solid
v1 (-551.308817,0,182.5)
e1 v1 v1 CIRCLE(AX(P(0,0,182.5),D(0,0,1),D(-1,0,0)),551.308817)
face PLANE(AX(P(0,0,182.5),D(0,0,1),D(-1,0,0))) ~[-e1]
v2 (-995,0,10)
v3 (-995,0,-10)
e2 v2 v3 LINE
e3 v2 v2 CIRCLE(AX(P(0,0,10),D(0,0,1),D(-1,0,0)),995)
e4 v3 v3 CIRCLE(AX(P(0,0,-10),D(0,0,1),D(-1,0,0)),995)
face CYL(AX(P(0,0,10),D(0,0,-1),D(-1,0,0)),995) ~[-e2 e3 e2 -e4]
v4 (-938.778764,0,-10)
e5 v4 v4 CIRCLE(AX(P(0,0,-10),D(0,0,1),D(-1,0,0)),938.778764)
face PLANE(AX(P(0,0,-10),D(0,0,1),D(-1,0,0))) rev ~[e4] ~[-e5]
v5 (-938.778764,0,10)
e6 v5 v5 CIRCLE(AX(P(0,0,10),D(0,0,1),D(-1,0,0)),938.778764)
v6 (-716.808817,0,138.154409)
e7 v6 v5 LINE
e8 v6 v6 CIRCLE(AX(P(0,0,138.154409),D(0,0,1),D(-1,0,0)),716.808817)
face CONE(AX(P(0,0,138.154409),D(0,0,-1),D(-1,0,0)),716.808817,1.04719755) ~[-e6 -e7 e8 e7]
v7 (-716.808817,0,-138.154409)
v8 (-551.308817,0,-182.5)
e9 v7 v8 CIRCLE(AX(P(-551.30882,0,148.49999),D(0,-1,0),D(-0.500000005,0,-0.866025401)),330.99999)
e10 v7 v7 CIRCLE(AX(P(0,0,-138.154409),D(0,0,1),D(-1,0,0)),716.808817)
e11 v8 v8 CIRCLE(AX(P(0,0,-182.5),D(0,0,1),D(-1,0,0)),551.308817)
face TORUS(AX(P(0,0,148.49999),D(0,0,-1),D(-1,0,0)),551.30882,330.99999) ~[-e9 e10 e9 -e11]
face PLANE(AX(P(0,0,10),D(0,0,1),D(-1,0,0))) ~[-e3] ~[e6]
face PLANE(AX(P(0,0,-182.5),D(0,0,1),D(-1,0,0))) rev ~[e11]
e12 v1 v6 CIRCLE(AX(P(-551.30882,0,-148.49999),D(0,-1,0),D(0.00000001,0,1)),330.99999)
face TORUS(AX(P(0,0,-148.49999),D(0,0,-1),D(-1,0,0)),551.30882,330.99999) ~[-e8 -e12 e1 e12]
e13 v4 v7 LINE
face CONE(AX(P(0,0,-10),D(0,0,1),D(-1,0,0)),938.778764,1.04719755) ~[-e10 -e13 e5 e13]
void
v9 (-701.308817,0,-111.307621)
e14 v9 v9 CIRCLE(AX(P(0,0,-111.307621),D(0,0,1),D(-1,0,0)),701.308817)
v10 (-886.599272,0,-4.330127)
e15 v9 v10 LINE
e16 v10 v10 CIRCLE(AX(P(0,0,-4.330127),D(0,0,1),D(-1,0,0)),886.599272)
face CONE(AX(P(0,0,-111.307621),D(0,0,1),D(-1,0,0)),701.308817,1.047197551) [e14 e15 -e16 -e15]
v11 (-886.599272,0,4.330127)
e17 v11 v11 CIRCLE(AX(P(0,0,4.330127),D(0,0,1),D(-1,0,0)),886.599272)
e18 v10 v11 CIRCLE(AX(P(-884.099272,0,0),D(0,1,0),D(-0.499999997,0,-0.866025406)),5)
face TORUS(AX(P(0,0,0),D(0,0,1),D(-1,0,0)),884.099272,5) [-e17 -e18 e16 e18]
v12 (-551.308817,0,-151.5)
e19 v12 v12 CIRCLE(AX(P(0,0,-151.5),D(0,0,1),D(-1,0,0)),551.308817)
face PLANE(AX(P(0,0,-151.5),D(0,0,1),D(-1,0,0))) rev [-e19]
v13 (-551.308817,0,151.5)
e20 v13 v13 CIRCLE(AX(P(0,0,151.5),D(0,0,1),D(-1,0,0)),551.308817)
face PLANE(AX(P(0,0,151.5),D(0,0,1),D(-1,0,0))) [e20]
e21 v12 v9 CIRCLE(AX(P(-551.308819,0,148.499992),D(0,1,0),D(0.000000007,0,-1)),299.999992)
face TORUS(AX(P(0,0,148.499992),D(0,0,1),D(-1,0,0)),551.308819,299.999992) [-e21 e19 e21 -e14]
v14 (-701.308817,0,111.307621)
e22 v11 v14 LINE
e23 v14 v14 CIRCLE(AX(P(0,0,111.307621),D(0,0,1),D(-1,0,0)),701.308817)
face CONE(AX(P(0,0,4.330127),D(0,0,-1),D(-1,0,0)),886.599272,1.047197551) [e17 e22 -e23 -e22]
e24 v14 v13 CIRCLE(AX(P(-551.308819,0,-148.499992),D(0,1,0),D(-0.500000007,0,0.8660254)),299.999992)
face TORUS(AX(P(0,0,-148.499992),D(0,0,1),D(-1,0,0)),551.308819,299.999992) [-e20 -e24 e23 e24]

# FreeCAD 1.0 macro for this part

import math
import FreeCAD as App
import Part
import Sketcher
Q = App.Units.Quantity

doc = App.newDocument("Part")
body = doc.addObject("PartDesign::Body", "Body")

# Sketch on XZ plane
sketch1 = body.newObject("Sketcher::SketchObject", "Sketch")
sketch1.AttachmentSupport = (doc.getObject("XZ_Plane"), [""])
sketch1.MapMode = "FlatFace"
sketch1.addGeometry([
    Part.LineSegment(App.Vector(-995, 10, 0), App.Vector(-995, -10, 0)),  # 0
    Part.LineSegment(App.Vector(-995, -10, 0), App.Vector(-938.778764, -10, 0)),  # 1
    Part.LineSegment(App.Vector(-938.778764, -10, 0), App.Vector(-716.808817, -138.154409, 0)),  # 2
    Part.ArcOfCircle(Part.Circle(App.Vector(-551.30882, 148.49999, 0), App.Vector(0, 0, 1), 330.99999), math.radians(-120), math.radians(-89.999999)),  # 3
    Part.LineSegment(App.Vector(-551.308817, -182.5, 0), App.Vector(0, -182.5, 0)),  # 4
    Part.LineSegment(App.Vector(0, -182.5, 0), App.Vector(0, -151.5, 0)),  # 5
    Part.LineSegment(App.Vector(0, -151.5, 0), App.Vector(-551.308817, -151.5, 0)),  # 6
    Part.ArcOfCircle(Part.Circle(App.Vector(-551.308819, 148.499992, 0), App.Vector(0, 0, 1), 299.999992), math.radians(-120), math.radians(-90)),  # 7
    Part.LineSegment(App.Vector(-701.308817, -111.307621, 0), App.Vector(-886.599272, -4.330127, 0)),  # 8
    Part.ArcOfCircle(Part.Circle(App.Vector(-884.099272, 0, 0), App.Vector(0, 0, 1), 5), math.radians(120), math.radians(240)),  # 9
    Part.LineSegment(App.Vector(-886.599272, 4.330127, 0), App.Vector(-701.308817, 111.307621, 0)),  # 10
    Part.ArcOfCircle(Part.Circle(App.Vector(-551.308819, -148.499992, 0), App.Vector(0, 0, 1), 299.999992), math.radians(90), math.radians(120)),  # 11
    Part.LineSegment(App.Vector(-551.308817, 151.5, 0), App.Vector(0, 151.5, 0)),  # 12
    Part.LineSegment(App.Vector(0, 151.5, 0), App.Vector(0, 182.5, 0)),  # 13
    Part.LineSegment(App.Vector(0, 182.5, 0), App.Vector(-551.308817, 182.5, 0)),  # 14
    Part.ArcOfCircle(Part.Circle(App.Vector(-551.30882, -148.49999, 0), App.Vector(0, 0, 1), 330.99999), math.radians(89.999999), math.radians(120)),  # 15
    Part.LineSegment(App.Vector(-716.808817, 138.154409, 0), App.Vector(-938.778764, 10, 0)),  # 16
    Part.LineSegment(App.Vector(-938.778764, 10, 0), App.Vector(-995, 10, 0)),  # 17
], False)
sketch1.addConstraint([
    Sketcher.Constraint("Coincident", 0, 2, 1, 1),
    Sketcher.Constraint("Coincident", 1, 2, 2, 1),
    Sketcher.Constraint("Tangent", 2, 2, 3, 1),
    Sketcher.Constraint("Tangent", 3, 2, 4, 1),
    Sketcher.Constraint("Coincident", 4, 2, 5, 1),
    Sketcher.Constraint("Coincident", 5, 2, 6, 1),
    Sketcher.Constraint("Tangent", 6, 2, 7, 2),
    Sketcher.Constraint("Tangent", 7, 1, 8, 1),
    Sketcher.Constraint("Tangent", 8, 2, 9, 2),
    Sketcher.Constraint("Tangent", 9, 1, 10, 1),
    Sketcher.Constraint("Tangent", 10, 2, 11, 2),
    Sketcher.Constraint("Tangent", 11, 1, 12, 1),
    Sketcher.Constraint("Coincident", 12, 2, 13, 1),
    Sketcher.Constraint("Coincident", 13, 2, 14, 1),
    Sketcher.Constraint("Tangent", 14, 2, 15, 1),
    Sketcher.Constraint("Tangent", 15, 2, 16, 1),
    Sketcher.Constraint("Coincident", 16, 2, 17, 1),
    Sketcher.Constraint("Coincident", 17, 2, 0, 1),
    Sketcher.Constraint("Vertical", 0),
    Sketcher.Constraint("Horizontal", 1),
    Sketcher.Constraint("Horizontal", 4),
    Sketcher.Constraint("Vertical", 5),
    Sketcher.Constraint("Horizontal", 6),
    Sketcher.Constraint("Horizontal", 12),
    Sketcher.Constraint("Vertical", 13),
    Sketcher.Constraint("Horizontal", 14),
    Sketcher.Constraint("Horizontal", 17),
    Sketcher.Constraint("Coincident", 7, 3, 3, 3),
    Sketcher.Constraint("Coincident", 15, 3, 11, 3),
    Sketcher.Constraint("Equal", 7, 11),
    Sketcher.Constraint("Equal", 3, 15),
    Sketcher.Constraint("Symmetric", 5, 2, 12, 2, -1, 1),
    Sketcher.Constraint("Symmetric", 8, 2, 9, 1, -1),
    Sketcher.Constraint("Symmetric", 1, 2, 16, 2, -1),
    Sketcher.Constraint("PointOnObject", 4, 2, -2),
    Sketcher.Constraint("Parallel", 2, 8),
    Sketcher.Constraint("Radius", 9, Q("5 mm")),
    Sketcher.Constraint("DistanceY", 0, 2, 0, 1, Q("20 mm")),
    Sketcher.Constraint("DistanceY", 5, 1, 5, 2, Q("31 mm")),
    Sketcher.Constraint("Angle", 2, Q("-30 deg")),
    Sketcher.Constraint("DistanceX", 0, 2, -1, 1, Q("995 mm")),
    Sketcher.Constraint("DistanceX", 10, 2, 7, 3, Q("149.999998 mm")),
    Sketcher.Constraint("DistanceY", 5, 2, 12, 2, Q("303 mm")),
    Sketcher.Constraint("DistanceX", 1, 1, 1, 2, Q("56.221236 mm")),
])
revolution = body.newObject("PartDesign::Revolution", "Revolution")
revolution.Profile = sketch1
revolution.ReferenceAxis = (sketch1, ["V_Axis"])
revolution.Angle = 360

doc.recompute()
